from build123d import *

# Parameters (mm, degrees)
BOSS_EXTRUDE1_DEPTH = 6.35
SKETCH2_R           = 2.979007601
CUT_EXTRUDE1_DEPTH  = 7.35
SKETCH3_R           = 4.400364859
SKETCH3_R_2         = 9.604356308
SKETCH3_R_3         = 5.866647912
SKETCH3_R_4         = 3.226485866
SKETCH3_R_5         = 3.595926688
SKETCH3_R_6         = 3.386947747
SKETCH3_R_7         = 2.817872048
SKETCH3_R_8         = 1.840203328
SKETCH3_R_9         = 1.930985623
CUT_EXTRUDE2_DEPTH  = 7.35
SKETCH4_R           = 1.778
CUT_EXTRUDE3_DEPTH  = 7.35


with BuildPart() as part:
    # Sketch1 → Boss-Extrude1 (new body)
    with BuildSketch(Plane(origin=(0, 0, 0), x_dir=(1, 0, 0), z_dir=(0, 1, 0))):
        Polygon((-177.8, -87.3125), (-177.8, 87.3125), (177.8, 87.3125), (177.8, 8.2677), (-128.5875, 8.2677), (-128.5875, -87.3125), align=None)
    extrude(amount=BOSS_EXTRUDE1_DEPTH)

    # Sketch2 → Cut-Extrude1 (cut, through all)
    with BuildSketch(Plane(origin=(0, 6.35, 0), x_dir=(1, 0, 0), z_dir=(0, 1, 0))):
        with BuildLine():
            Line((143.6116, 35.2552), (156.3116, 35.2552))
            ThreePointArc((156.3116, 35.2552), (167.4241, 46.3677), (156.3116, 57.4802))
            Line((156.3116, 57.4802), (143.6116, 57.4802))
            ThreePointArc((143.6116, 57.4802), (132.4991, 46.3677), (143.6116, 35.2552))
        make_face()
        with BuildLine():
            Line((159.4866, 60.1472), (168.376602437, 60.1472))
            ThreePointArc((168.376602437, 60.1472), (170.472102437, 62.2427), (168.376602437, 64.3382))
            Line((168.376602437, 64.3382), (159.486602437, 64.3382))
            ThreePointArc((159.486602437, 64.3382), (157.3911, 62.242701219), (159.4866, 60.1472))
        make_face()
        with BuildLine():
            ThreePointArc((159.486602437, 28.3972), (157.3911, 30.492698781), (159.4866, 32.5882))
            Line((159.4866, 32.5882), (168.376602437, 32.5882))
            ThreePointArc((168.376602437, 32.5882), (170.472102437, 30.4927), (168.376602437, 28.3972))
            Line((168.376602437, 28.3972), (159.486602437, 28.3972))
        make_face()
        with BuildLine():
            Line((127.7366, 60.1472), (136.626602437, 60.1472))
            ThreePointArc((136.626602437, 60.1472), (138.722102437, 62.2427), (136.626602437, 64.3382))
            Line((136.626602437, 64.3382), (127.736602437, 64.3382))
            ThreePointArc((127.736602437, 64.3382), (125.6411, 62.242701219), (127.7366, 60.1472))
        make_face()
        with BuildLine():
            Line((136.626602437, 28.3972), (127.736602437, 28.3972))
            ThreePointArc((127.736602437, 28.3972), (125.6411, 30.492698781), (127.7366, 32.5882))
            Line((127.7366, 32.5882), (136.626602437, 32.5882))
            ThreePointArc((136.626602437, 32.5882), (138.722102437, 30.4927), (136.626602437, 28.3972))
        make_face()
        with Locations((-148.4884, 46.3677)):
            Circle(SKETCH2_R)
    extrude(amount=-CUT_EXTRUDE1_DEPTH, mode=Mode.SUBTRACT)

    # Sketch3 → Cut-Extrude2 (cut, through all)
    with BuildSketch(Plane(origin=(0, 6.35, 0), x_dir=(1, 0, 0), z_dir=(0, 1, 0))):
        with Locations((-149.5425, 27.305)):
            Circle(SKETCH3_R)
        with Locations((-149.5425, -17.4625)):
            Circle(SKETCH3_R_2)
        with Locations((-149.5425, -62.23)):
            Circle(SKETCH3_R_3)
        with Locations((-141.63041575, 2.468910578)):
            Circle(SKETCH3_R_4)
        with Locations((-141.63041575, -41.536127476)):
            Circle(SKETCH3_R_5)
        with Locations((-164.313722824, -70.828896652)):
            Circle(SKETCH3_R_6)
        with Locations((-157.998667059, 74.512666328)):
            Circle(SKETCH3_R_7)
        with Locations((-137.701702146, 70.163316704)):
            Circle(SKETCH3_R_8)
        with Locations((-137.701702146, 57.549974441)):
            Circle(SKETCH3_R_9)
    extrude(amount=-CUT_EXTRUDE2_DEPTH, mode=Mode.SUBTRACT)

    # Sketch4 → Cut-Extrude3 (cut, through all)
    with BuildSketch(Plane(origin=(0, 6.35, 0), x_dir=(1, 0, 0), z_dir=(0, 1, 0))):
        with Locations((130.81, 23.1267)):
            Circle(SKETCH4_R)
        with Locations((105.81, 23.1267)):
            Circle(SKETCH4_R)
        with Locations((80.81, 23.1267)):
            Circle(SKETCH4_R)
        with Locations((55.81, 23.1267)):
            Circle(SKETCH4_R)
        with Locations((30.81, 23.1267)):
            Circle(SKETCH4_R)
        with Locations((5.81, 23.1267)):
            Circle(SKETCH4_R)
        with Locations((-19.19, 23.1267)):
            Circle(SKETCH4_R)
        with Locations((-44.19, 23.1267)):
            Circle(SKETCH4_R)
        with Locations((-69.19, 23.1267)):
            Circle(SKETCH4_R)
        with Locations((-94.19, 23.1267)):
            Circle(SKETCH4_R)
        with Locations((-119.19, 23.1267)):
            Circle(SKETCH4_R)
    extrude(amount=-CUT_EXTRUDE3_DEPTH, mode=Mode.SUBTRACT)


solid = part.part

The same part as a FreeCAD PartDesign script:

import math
import FreeCAD as App
import Part
import Sketcher

V = App.Vector
Q = App.Units.Quantity


def add_polygon(sketch, points):
    """Adds a closed chain of lines whose ends are joined by coincident constraints."""
    first, n = sketch.GeometryCount, len(points)
    for a, b in zip(points, points[1:] + points[:1]):
        sketch.addGeometry(Part.LineSegment(App.Vector(*a, 0), App.Vector(*b, 0)), False)
    for i in range(n):
        sketch.addConstraint(Sketcher.Constraint("Coincident", first + i, 2, first + (i + 1) % n, 1))

doc = App.newDocument("Part")
body = doc.addObject("PartDesign::Body", "Body")

# Sketch on XZ plane
sketch1 = body.newObject("Sketcher::SketchObject", "Sketch")
sketch1.AttachmentSupport = (doc.getObject("XZ_Plane"), [""])
sketch1.MapMode = "FlatFace"
add_polygon(sketch1, [(-178, -87), (-178, 87), (-129, 87), (-129, -8), (178, -8), (178, -87)])  # lines 0-5
sketch1.addConstraint([
    Sketcher.Constraint("Vertical", 0),
    Sketcher.Constraint("Horizontal", 1),
    Sketcher.Constraint("Vertical", 2),
    Sketcher.Constraint("Horizontal", 3),
    Sketcher.Constraint("Vertical", 4),
    Sketcher.Constraint("Horizontal", 5),
    Sketcher.Constraint("Symmetric", 0, 2, 4, 2, -1, 1),
    Sketcher.Constraint("DistanceX", 5, 2, 5, 1, Q("14 in")),
    Sketcher.Constraint("DistanceX", 1, 1, 1, 2, Q("1.9375 in")),
    Sketcher.Constraint("DistanceY", 0, 1, 0, 2, Q("6.875 in")),
    Sketcher.Constraint("DistanceY", 2, 2, 2, 1, Q("3.763 in")),
])
pad1 = body.newObject("PartDesign::Pad", "Pad")
pad1.Profile = sketch1
pad1.Length = Q("0.25 in")
pad1.Reversed = True

# Sketch on XZ plane
sketch2 = body.newObject("Sketcher::SketchObject", "Sketch001")
sketch2.AttachmentSupport = (doc.getObject("XZ_Plane"), [""])
sketch2.MapMode = "FlatFace"
sketch2.AttachmentOffset = App.Placement(V(0, 0, -0.25 * 25.4), App.Rotation())
sketch2.addGeometry([
    Part.LineSegment(V(143.6, -35.3, 0), V(156.3, -35.3, 0)),  # 0
    Part.ArcOfCircle(Part.Circle(V(156.3, -46.4, 0), V(0, 0, 1), 11.1), math.radians(-90), math.radians(90)),  # 1
    Part.LineSegment(V(156.3, -57.5, 0), V(143.6, -57.5, 0)),  # 2
    Part.ArcOfCircle(Part.Circle(V(143.6, -46.4, 0), V(0, 0, 1), 11.1), math.radians(90), math.radians(270)),  # 3
    Part.LineSegment(V(159.5, -60.1, 0), V(168.4, -60.1, 0)),  # 4
    Part.ArcOfCircle(Part.Circle(V(168.4, -62.2, 0), V(0, 0, 1), 2.1), math.radians(-90), math.radians(90)),  # 5
    Part.LineSegment(V(168.4, -64.3, 0), V(159.5, -64.3, 0)),  # 6
    Part.ArcOfCircle(Part.Circle(V(159.5, -62.2, 0), V(0, 0, 1), 2.1), math.radians(90), math.radians(270)),  # 7
    Part.ArcOfCircle(Part.Circle(V(159.5, -30.5, 0), V(0, 0, 1), 2.1), math.radians(90), math.radians(270)),  # 8
    Part.LineSegment(V(159.5, -28.4, 0), V(168.4, -28.4, 0)),  # 9
    Part.ArcOfCircle(Part.Circle(V(168.4, -30.5, 0), V(0, 0, 1), 2.1), math.radians(-90), math.radians(90)),  # 10
    Part.LineSegment(V(168.4, -32.6, 0), V(159.5, -32.6, 0)),  # 11
    Part.LineSegment(V(127.7, -60.1, 0), V(136.6, -60.1, 0)),  # 12
    Part.ArcOfCircle(Part.Circle(V(136.6, -62.2, 0), V(0, 0, 1), 2.1), math.radians(-90), math.radians(90)),  # 13
    Part.LineSegment(V(136.6, -64.3, 0), V(127.7, -64.3, 0)),  # 14
    Part.ArcOfCircle(Part.Circle(V(127.7, -62.2, 0), V(0, 0, 1), 2.1), math.radians(90), math.radians(270)),  # 15
    Part.LineSegment(V(127.7, -28.4, 0), V(136.6, -28.4, 0)),  # 16
    Part.ArcOfCircle(Part.Circle(V(136.6, -30.5, 0), V(0, 0, 1), 2.1), math.radians(-90), math.radians(90)),  # 17
    Part.LineSegment(V(136.6, -32.6, 0), V(127.7, -32.6, 0)),  # 18
    Part.ArcOfCircle(Part.Circle(V(127.7, -30.5, 0), V(0, 0, 1), 2.1), math.radians(90), math.radians(270)),  # 19
    Part.Circle(V(-148.5, -46.4, 0), V(0, 0, 1), 3),  # 20
], False)
sketch2.addConstraint([
    Sketcher.Constraint("Tangent", 0, 2, 1, 2),
    Sketcher.Constraint("Tangent", 1, 1, 2, 1),
    Sketcher.Constraint("Tangent", 2, 2, 3, 2),
    Sketcher.Constraint("Tangent", 3, 1, 0, 1),
    Sketcher.Constraint("Tangent", 4, 2, 5, 2),
    Sketcher.Constraint("Tangent", 5, 1, 6, 1),
    Sketcher.Constraint("Tangent", 6, 2, 7, 2),
    Sketcher.Constraint("Tangent", 7, 1, 4, 1),
    Sketcher.Constraint("Tangent", 8, 1, 9, 1),
    Sketcher.Constraint("Tangent", 9, 2, 10, 2),
    Sketcher.Constraint("Tangent", 10, 1, 11, 1),
    Sketcher.Constraint("Tangent", 11, 2, 8, 2),
    Sketcher.Constraint("Tangent", 12, 2, 13, 2),
    Sketcher.Constraint("Tangent", 13, 1, 14, 1),
    Sketcher.Constraint("Tangent", 14, 2, 15, 2),
    Sketcher.Constraint("Tangent", 15, 1, 12, 1),
    Sketcher.Constraint("Tangent", 16, 2, 17, 2),
    Sketcher.Constraint("Tangent", 17, 1, 18, 1),
    Sketcher.Constraint("Tangent", 18, 2, 19, 2),
    Sketcher.Constraint("Tangent", 19, 1, 16, 1),
    Sketcher.Constraint("Horizontal", 0),
    Sketcher.Constraint("Horizontal", 2),
    Sketcher.Constraint("Horizontal", 4),
    Sketcher.Constraint("Horizontal", 6),
    Sketcher.Constraint("Horizontal", 9),
    Sketcher.Constraint("Horizontal", 11),
    Sketcher.Constraint("Horizontal", 12),
    Sketcher.Constraint("Horizontal", 14),
    Sketcher.Constraint("Horizontal", 16),
    Sketcher.Constraint("Horizontal", 18),
    Sketcher.Constraint("Equal", 7, 8),
    Sketcher.Constraint("Equal", 10, 13),
    Sketcher.Constraint("Equal", 15, 17),
    Sketcher.Constraint("Horizontal", 7, 3, 13, 3),
    Sketcher.Constraint("Horizontal", 10, 3, 17, 3),
    Sketcher.Constraint("Horizontal", 3, 3, 20, 3),
    Sketcher.Constraint("Vertical", 7, 3, 8, 3),
    Sketcher.Constraint("Vertical", 5, 3, 10, 3),
    Sketcher.Constraint("Vertical", 13, 3, 17, 3),
    Sketcher.Constraint("Vertical", 15, 3, 19, 3),
    Sketcher.Constraint("Equal", 11, 12),
    Sketcher.Constraint("DistanceX", 0, 1, 0, 2, Q("0.5 in")),
    Sketcher.Constraint("Radius", 1, Q("0.4375 in")),
    Sketcher.Constraint("DistanceX", 4, 1, 4, 2, Q("0.3500001 in")),
    Sketcher.Constraint("Radius", 5, Q("0.0825 in")),
    Sketcher.Constraint("DistanceX", 13, 3, 7, 3, Q("0.8999999 in")),
    Sketcher.Constraint("DistanceX", 20, 3, 3, 3, Q("11.5 in")),
    Sketcher.Constraint("DistanceY", 7, 3, 8, 3, Q("1.25 in")),
    Sketcher.Constraint("DistanceY", 5, 1, 1, 1, Q("0.27 in")),
    Sketcher.Constraint("DistanceX", -1, 1, 1, 3, Q("6.154 in")),
    Sketcher.Constraint("DistanceX", -1, 1, 5, 3, Q("6.6290001 in")),
    Sketcher.Constraint("DistanceY", 0, 2, -1, 1, Q("1.388 in")),
    Sketcher.Constraint("Diameter", 20, 5.958015),
])
pocket1 = body.newObject("PartDesign::Pocket", "Pocket")
pocket1.Profile = sketch2
pocket1.Type = "ThroughAll"
pocket1.Reversed = True

# Sketch on XZ plane
sketch3 = body.newObject("Sketcher::SketchObject", "Sketch002")
sketch3.AttachmentSupport = (doc.getObject("XZ_Plane"), [""])
sketch3.MapMode = "FlatFace"
sketch3.AttachmentOffset = App.Placement(V(0, 0, -0.25 * 25.4), App.Rotation())
sketch3.addGeometry([
    Part.Circle(V(-149.5, -27.3, 0), V(0, 0, 1), 4.4),  # 0
    Part.Circle(V(-149.5, 17.5, 0), V(0, 0, 1), 9.6),  # 1
    Part.Circle(V(-149.5, 62.2, 0), V(0, 0, 1), 5.9),  # 2
    Part.Circle(V(-141.6, -2.5, 0), V(0, 0, 1), 3.2),  # 3
    Part.Circle(V(-141.6, 41.5, 0), V(0, 0, 1), 3.6),  # 4
    Part.Circle(V(-164.3, 70.8, 0), V(0, 0, 1), 3.4),  # 5
    Part.Circle(V(-158, -74.5, 0), V(0, 0, 1), 2.8),  # 6
    Part.Circle(V(-137.7, -70.2, 0), V(0, 0, 1), 1.8),  # 7
    Part.Circle(V(-137.7, -57.5, 0), V(0, 0, 1), 1.9),  # 8
], False)
sketch3.addConstraint([
    Sketcher.Constraint("Vertical", 0, 3, 1, 3),
    Sketcher.Constraint("Vertical", 1, 3, 2, 3),
    Sketcher.Constraint("Vertical", 3, 3, 4, 3),
    Sketcher.Constraint("Vertical", 7, 3, 8, 3),
    Sketcher.Constraint("DistanceY", -1, 1, 2, 3, Q("2.45 in")),
    Sketcher.Constraint("Diameter", 0, 8.80073),
    Sketcher.Constraint("Diameter", 3, 6.452972),
    Sketcher.Constraint("Diameter", 8, 3.861971),
    Sketcher.Constraint("DistanceY", 0, 3, -1, 1, Q("1.075 in")),
    Sketcher.Constraint("DistanceY", -1, 1, 1, 3, Q("0.6875 in")),
    Sketcher.Constraint("Diameter", 1, 19.208713),
    Sketcher.Constraint("Diameter", 2, 11.733296),
    Sketcher.Constraint("Diameter", 4, 7.191853),
    Sketcher.Constraint("Diameter", 5, 6.773895),
    Sketcher.Constraint("Diameter", 6, 5.635744),
    Sketcher.Constraint("Diameter", 7, 3.680407),
    Sketcher.Constraint("DistanceX", 0, 3, -1, 1, Q("5.8875 in")),
    Sketcher.Constraint("DistanceY", 3, 3, -1, 1, 2.468911),
    Sketcher.Constraint("DistanceY", 3, 3, 4, 3, 44.005038),
    Sketcher.Constraint("DistanceY", 4, 3, 5, 3, 29.292769),
    Sketcher.Constraint("DistanceX", 6, 3, 3, 3, 16.368251),
    Sketcher.Constraint("DistanceY", 6, 3, 7, 3, 4.34935),
    Sketcher.Constraint("DistanceY", 6, 3, 8, 3, 16.962692),
    Sketcher.Constraint("DistanceX", 3, 3, -1, 1, 141.630416),
    Sketcher.Constraint("DistanceX", 5, 3, -1, 1, 164.313723),
    Sketcher.Constraint("DistanceY", 6, 3, -1, 1, 74.512666),
    Sketcher.Constraint("DistanceX", 7, 3, -1, 1, 137.701702),
])
pocket2 = body.newObject("PartDesign::Pocket", "Pocket001")
pocket2.Profile = sketch3
pocket2.Type = "ThroughAll"
pocket2.Reversed = True

# Sketch on XZ plane
sketch4 = body.newObject("Sketcher::SketchObject", "Sketch003")
sketch4.AttachmentSupport = (doc.getObject("XZ_Plane"), [""])
sketch4.MapMode = "FlatFace"
sketch4.AttachmentOffset = App.Placement(V(0, 0, -0.25 * 25.4), App.Rotation())
sketch4.addGeometry([
    Part.Circle(V(130.8, -23.1, 0), V(0, 0, 1), 1.8),  # 0
    Part.Circle(V(105.8, -23.1, 0), V(0, 0, 1), 1.8),  # 1
    Part.Circle(V(80.8, -23.1, 0), V(0, 0, 1), 1.8),  # 2
    Part.Circle(V(55.8, -23.1, 0), V(0, 0, 1), 1.8),  # 3
    Part.Circle(V(30.8, -23.1, 0), V(0, 0, 1), 1.8),  # 4
    Part.Circle(V(5.8, -23.1, 0), V(0, 0, 1), 1.8),  # 5
    Part.Circle(V(-19.2, -23.1, 0), V(0, 0, 1), 1.8),  # 6
    Part.Circle(V(-44.2, -23.1, 0), V(0, 0, 1), 1.8),  # 7
    Part.Circle(V(-69.2, -23.1, 0), V(0, 0, 1), 1.8),  # 8
    Part.Circle(V(-94.2, -23.1, 0), V(0, 0, 1), 1.8),  # 9
    Part.Circle(V(-119.2, -23.1, 0), V(0, 0, 1), 1.8),  # 10
], False)
sketch4.addConstraint([
    Sketcher.Constraint("Equal", 0, 1),
    Sketcher.Constraint("Equal", 1, 2),
    Sketcher.Constraint("Equal", 2, 3),
    Sketcher.Constraint("Equal", 3, 4),
    Sketcher.Constraint("Equal", 4, 5),
    Sketcher.Constraint("Equal", 5, 6),
    Sketcher.Constraint("Equal", 6, 7),
    Sketcher.Constraint("Equal", 7, 8),
    Sketcher.Constraint("Equal", 8, 9),
    Sketcher.Constraint("Equal", 9, 10),
    Sketcher.Constraint("Horizontal", 0, 3, 1, 3),
    Sketcher.Constraint("Horizontal", 1, 3, 2, 3),
    Sketcher.Constraint("Horizontal", 2, 3, 3, 3),
    Sketcher.Constraint("Horizontal", 3, 3, 4, 3),
    Sketcher.Constraint("Horizontal", 4, 3, 5, 3),
    Sketcher.Constraint("Horizontal", 5, 3, 6, 3),
    Sketcher.Constraint("Horizontal", 6, 3, 7, 3),
    Sketcher.Constraint("Horizontal", 7, 3, 8, 3),
    Sketcher.Constraint("Horizontal", 8, 3, 9, 3),
    Sketcher.Constraint("Horizontal", 9, 3, 10, 3),
    Sketcher.Constraint("Diameter", 0, Q("0.14 in")),
    Sketcher.Constraint("DistanceX", -1, 1, 0, 3, Q("5.15 in")),
    Sketcher.Constraint("DistanceY", 0, 3, -1, 1, Q("0.9105 in")),
    Sketcher.Constraint("DistanceX", -1, 1, 1, 3, 105.81),
    Sketcher.Constraint("DistanceX", -1, 1, 2, 3, 80.81),
    Sketcher.Constraint("DistanceX", -1, 1, 3, 3, 55.81),
    Sketcher.Constraint("DistanceX", -1, 1, 4, 3, 30.81),
    Sketcher.Constraint("DistanceX", -1, 1, 5, 3, 5.81),
    Sketcher.Constraint("DistanceX", 6, 3, -1, 1, 19.19),
    Sketcher.Constraint("DistanceX", 7, 3, -1, 1, 44.19),
    Sketcher.Constraint("DistanceX", 8, 3, -1, 1, 69.19),
    Sketcher.Constraint("DistanceX", 9, 3, -1, 1, 94.19),
    Sketcher.Constraint("DistanceX", 10, 3, -1, 1, 119.19),
])
pocket3 = body.newObject("PartDesign::Pocket", "Pocket002")
pocket3.Profile = sketch4
pocket3.Type = "ThroughAll"
pocket3.Reversed = True

doc.recompute()
